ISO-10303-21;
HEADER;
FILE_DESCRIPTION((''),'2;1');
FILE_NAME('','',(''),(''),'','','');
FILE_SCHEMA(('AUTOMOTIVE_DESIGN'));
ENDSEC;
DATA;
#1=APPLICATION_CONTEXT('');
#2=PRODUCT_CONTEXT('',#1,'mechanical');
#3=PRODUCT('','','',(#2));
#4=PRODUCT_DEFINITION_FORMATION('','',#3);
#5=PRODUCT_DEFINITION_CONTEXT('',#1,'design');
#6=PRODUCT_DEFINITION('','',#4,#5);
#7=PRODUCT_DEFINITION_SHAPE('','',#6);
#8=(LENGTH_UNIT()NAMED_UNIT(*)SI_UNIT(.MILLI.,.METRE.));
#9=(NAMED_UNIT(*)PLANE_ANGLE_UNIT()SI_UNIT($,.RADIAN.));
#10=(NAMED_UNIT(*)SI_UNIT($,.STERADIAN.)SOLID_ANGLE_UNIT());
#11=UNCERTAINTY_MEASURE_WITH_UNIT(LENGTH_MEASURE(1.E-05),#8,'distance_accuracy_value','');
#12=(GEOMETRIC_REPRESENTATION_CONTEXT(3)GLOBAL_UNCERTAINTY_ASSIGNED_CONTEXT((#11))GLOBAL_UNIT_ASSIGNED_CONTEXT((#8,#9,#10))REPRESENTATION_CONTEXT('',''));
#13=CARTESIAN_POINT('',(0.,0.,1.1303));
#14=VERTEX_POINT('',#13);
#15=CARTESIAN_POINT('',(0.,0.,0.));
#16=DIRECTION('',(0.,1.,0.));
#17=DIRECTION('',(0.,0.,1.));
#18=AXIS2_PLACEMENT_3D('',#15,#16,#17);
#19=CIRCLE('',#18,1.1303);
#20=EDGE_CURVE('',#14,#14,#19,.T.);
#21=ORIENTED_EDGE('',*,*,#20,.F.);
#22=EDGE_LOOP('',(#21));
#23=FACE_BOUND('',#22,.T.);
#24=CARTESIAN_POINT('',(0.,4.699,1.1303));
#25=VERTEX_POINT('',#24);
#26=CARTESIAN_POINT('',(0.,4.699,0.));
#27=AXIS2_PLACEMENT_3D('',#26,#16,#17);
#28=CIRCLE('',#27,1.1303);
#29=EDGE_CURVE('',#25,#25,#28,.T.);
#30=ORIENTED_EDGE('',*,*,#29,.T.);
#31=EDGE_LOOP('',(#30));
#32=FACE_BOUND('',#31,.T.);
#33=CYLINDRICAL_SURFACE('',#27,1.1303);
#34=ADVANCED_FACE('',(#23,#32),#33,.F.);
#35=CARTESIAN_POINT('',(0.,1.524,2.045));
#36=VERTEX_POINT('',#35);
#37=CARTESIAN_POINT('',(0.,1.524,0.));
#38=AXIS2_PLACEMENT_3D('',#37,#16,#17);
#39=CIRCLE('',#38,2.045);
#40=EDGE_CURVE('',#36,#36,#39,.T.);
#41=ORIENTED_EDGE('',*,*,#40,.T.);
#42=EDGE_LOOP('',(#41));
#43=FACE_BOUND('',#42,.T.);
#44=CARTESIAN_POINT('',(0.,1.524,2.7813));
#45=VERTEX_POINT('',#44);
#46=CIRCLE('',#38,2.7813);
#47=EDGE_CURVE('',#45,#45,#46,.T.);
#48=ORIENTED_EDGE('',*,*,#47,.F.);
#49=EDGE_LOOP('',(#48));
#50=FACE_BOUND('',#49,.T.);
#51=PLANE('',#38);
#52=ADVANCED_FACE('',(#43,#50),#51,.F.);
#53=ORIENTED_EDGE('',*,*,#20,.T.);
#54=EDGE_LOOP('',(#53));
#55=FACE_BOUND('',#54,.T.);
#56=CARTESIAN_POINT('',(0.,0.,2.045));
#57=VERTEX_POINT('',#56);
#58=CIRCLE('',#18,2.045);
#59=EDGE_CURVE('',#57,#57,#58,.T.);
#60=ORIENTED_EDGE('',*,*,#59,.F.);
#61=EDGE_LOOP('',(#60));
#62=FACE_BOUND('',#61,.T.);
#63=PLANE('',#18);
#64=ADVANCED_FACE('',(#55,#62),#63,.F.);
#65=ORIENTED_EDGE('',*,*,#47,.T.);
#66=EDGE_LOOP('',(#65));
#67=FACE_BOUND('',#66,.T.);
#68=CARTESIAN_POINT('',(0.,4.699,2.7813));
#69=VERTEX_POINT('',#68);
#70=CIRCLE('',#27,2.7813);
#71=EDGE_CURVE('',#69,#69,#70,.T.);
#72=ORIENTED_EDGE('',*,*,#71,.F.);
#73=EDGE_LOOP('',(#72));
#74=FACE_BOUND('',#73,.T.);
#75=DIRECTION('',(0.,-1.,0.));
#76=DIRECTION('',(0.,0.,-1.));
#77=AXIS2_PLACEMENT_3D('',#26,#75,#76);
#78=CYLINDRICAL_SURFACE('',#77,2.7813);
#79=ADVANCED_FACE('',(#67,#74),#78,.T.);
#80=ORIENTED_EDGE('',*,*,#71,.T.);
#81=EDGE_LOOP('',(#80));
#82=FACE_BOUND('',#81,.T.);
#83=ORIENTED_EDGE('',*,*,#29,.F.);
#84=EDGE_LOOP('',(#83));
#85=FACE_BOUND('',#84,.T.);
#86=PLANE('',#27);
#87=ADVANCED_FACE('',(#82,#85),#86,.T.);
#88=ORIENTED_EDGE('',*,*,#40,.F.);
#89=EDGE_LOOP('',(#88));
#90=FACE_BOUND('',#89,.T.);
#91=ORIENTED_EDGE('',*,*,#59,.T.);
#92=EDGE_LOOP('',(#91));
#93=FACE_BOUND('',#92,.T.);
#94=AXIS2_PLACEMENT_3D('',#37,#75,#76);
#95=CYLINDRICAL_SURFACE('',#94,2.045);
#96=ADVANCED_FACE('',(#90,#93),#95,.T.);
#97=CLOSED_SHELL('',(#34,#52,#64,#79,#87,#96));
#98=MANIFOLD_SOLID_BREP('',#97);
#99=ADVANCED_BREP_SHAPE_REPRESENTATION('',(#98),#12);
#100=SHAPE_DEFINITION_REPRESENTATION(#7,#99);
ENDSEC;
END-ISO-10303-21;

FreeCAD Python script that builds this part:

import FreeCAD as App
import Part
import Sketcher
Q = App.Units.Quantity

doc = App.newDocument("Part")
body = doc.addObject("PartDesign::Body", "Body")

sketch1 = doc.addObject("Sketcher::SketchObject", "Sketch")
body.addObject(sketch1)
sketch1.AttachmentSupport = (doc.XZ_Plane, [""])
sketch1.MapMode = "FlatFace"
sketch1.addGeometry(Part.Circle(App.Vector(0, 0, 0), App.Vector(0, 0, 1), 2.045), False)
sketch1.addConstraint([
    Sketcher.Constraint("Coincident", 0, 3, -1, 1),
    Sketcher.Constraint("Diameter", 0, Q("4.09 mm")),
])
pad1 = doc.addObject("PartDesign::Pad", "Pad")
body.addObject(pad1)
pad1.Profile = sketch1
pad1.Length = Q("0.06 in")
pad1.Reversed = True

sketch2 = doc.addObject("Sketcher::SketchObject", "Sketch001")
body.addObject(sketch2)
sketch2.AttachmentSupport = (doc.XZ_Plane, [""])
sketch2.MapMode = "FlatFace"
sketch2.AttachmentOffset = App.Placement(App.Vector(0, 0, -0.06 * 25.4), App.Rotation())
sketch2.addGeometry(Part.Circle(App.Vector(0, 0, 0), App.Vector(0, 0, 1), 2.7813), False)
sketch2.addConstraint([
    Sketcher.Constraint("Coincident", 0, 3, -1, 1),
    Sketcher.Constraint("Diameter", 0, Q("0.219 in")),
])
pad2 = doc.addObject("PartDesign::Pad", "Pad001")
body.addObject(pad2)
pad2.Profile = sketch2
pad2.Length = Q("0.125 in")
pad2.Reversed = True

sketch3 = doc.addObject("Sketcher::SketchObject", "Sketch002")
body.addObject(sketch3)
sketch3.AttachmentSupport = (doc.XZ_Plane, [""])
sketch3.MapMode = "FlatFace"
sketch3.AttachmentOffset = App.Placement(App.Vector(0, 0, -0.185 * 25.4), App.Rotation())
sketch3.addGeometry(Part.Circle(App.Vector(0, 0, 0), App.Vector(0, 0, 1), 1.1303), False)
sketch3.addConstraint([
    Sketcher.Constraint("Coincident", 0, 3, -1, 1),
    Sketcher.Constraint("Diameter", 0, Q("0.089 in")),
])
doc.recompute()
hole = doc.addObject("PartDesign::Hole", "Hole")
body.addObject(hole)
hole.Profile = sketch3
hole.ThreadType = "None"
hole.Diameter = Q("0.089 in")
hole.DepthType = "Dimension"
hole.Depth = Q("0.3 in")
hole.DrillPoint = "Angled"
hole.DrillPointAngle = 118
hole.Reversed = True

doc.recompute()
